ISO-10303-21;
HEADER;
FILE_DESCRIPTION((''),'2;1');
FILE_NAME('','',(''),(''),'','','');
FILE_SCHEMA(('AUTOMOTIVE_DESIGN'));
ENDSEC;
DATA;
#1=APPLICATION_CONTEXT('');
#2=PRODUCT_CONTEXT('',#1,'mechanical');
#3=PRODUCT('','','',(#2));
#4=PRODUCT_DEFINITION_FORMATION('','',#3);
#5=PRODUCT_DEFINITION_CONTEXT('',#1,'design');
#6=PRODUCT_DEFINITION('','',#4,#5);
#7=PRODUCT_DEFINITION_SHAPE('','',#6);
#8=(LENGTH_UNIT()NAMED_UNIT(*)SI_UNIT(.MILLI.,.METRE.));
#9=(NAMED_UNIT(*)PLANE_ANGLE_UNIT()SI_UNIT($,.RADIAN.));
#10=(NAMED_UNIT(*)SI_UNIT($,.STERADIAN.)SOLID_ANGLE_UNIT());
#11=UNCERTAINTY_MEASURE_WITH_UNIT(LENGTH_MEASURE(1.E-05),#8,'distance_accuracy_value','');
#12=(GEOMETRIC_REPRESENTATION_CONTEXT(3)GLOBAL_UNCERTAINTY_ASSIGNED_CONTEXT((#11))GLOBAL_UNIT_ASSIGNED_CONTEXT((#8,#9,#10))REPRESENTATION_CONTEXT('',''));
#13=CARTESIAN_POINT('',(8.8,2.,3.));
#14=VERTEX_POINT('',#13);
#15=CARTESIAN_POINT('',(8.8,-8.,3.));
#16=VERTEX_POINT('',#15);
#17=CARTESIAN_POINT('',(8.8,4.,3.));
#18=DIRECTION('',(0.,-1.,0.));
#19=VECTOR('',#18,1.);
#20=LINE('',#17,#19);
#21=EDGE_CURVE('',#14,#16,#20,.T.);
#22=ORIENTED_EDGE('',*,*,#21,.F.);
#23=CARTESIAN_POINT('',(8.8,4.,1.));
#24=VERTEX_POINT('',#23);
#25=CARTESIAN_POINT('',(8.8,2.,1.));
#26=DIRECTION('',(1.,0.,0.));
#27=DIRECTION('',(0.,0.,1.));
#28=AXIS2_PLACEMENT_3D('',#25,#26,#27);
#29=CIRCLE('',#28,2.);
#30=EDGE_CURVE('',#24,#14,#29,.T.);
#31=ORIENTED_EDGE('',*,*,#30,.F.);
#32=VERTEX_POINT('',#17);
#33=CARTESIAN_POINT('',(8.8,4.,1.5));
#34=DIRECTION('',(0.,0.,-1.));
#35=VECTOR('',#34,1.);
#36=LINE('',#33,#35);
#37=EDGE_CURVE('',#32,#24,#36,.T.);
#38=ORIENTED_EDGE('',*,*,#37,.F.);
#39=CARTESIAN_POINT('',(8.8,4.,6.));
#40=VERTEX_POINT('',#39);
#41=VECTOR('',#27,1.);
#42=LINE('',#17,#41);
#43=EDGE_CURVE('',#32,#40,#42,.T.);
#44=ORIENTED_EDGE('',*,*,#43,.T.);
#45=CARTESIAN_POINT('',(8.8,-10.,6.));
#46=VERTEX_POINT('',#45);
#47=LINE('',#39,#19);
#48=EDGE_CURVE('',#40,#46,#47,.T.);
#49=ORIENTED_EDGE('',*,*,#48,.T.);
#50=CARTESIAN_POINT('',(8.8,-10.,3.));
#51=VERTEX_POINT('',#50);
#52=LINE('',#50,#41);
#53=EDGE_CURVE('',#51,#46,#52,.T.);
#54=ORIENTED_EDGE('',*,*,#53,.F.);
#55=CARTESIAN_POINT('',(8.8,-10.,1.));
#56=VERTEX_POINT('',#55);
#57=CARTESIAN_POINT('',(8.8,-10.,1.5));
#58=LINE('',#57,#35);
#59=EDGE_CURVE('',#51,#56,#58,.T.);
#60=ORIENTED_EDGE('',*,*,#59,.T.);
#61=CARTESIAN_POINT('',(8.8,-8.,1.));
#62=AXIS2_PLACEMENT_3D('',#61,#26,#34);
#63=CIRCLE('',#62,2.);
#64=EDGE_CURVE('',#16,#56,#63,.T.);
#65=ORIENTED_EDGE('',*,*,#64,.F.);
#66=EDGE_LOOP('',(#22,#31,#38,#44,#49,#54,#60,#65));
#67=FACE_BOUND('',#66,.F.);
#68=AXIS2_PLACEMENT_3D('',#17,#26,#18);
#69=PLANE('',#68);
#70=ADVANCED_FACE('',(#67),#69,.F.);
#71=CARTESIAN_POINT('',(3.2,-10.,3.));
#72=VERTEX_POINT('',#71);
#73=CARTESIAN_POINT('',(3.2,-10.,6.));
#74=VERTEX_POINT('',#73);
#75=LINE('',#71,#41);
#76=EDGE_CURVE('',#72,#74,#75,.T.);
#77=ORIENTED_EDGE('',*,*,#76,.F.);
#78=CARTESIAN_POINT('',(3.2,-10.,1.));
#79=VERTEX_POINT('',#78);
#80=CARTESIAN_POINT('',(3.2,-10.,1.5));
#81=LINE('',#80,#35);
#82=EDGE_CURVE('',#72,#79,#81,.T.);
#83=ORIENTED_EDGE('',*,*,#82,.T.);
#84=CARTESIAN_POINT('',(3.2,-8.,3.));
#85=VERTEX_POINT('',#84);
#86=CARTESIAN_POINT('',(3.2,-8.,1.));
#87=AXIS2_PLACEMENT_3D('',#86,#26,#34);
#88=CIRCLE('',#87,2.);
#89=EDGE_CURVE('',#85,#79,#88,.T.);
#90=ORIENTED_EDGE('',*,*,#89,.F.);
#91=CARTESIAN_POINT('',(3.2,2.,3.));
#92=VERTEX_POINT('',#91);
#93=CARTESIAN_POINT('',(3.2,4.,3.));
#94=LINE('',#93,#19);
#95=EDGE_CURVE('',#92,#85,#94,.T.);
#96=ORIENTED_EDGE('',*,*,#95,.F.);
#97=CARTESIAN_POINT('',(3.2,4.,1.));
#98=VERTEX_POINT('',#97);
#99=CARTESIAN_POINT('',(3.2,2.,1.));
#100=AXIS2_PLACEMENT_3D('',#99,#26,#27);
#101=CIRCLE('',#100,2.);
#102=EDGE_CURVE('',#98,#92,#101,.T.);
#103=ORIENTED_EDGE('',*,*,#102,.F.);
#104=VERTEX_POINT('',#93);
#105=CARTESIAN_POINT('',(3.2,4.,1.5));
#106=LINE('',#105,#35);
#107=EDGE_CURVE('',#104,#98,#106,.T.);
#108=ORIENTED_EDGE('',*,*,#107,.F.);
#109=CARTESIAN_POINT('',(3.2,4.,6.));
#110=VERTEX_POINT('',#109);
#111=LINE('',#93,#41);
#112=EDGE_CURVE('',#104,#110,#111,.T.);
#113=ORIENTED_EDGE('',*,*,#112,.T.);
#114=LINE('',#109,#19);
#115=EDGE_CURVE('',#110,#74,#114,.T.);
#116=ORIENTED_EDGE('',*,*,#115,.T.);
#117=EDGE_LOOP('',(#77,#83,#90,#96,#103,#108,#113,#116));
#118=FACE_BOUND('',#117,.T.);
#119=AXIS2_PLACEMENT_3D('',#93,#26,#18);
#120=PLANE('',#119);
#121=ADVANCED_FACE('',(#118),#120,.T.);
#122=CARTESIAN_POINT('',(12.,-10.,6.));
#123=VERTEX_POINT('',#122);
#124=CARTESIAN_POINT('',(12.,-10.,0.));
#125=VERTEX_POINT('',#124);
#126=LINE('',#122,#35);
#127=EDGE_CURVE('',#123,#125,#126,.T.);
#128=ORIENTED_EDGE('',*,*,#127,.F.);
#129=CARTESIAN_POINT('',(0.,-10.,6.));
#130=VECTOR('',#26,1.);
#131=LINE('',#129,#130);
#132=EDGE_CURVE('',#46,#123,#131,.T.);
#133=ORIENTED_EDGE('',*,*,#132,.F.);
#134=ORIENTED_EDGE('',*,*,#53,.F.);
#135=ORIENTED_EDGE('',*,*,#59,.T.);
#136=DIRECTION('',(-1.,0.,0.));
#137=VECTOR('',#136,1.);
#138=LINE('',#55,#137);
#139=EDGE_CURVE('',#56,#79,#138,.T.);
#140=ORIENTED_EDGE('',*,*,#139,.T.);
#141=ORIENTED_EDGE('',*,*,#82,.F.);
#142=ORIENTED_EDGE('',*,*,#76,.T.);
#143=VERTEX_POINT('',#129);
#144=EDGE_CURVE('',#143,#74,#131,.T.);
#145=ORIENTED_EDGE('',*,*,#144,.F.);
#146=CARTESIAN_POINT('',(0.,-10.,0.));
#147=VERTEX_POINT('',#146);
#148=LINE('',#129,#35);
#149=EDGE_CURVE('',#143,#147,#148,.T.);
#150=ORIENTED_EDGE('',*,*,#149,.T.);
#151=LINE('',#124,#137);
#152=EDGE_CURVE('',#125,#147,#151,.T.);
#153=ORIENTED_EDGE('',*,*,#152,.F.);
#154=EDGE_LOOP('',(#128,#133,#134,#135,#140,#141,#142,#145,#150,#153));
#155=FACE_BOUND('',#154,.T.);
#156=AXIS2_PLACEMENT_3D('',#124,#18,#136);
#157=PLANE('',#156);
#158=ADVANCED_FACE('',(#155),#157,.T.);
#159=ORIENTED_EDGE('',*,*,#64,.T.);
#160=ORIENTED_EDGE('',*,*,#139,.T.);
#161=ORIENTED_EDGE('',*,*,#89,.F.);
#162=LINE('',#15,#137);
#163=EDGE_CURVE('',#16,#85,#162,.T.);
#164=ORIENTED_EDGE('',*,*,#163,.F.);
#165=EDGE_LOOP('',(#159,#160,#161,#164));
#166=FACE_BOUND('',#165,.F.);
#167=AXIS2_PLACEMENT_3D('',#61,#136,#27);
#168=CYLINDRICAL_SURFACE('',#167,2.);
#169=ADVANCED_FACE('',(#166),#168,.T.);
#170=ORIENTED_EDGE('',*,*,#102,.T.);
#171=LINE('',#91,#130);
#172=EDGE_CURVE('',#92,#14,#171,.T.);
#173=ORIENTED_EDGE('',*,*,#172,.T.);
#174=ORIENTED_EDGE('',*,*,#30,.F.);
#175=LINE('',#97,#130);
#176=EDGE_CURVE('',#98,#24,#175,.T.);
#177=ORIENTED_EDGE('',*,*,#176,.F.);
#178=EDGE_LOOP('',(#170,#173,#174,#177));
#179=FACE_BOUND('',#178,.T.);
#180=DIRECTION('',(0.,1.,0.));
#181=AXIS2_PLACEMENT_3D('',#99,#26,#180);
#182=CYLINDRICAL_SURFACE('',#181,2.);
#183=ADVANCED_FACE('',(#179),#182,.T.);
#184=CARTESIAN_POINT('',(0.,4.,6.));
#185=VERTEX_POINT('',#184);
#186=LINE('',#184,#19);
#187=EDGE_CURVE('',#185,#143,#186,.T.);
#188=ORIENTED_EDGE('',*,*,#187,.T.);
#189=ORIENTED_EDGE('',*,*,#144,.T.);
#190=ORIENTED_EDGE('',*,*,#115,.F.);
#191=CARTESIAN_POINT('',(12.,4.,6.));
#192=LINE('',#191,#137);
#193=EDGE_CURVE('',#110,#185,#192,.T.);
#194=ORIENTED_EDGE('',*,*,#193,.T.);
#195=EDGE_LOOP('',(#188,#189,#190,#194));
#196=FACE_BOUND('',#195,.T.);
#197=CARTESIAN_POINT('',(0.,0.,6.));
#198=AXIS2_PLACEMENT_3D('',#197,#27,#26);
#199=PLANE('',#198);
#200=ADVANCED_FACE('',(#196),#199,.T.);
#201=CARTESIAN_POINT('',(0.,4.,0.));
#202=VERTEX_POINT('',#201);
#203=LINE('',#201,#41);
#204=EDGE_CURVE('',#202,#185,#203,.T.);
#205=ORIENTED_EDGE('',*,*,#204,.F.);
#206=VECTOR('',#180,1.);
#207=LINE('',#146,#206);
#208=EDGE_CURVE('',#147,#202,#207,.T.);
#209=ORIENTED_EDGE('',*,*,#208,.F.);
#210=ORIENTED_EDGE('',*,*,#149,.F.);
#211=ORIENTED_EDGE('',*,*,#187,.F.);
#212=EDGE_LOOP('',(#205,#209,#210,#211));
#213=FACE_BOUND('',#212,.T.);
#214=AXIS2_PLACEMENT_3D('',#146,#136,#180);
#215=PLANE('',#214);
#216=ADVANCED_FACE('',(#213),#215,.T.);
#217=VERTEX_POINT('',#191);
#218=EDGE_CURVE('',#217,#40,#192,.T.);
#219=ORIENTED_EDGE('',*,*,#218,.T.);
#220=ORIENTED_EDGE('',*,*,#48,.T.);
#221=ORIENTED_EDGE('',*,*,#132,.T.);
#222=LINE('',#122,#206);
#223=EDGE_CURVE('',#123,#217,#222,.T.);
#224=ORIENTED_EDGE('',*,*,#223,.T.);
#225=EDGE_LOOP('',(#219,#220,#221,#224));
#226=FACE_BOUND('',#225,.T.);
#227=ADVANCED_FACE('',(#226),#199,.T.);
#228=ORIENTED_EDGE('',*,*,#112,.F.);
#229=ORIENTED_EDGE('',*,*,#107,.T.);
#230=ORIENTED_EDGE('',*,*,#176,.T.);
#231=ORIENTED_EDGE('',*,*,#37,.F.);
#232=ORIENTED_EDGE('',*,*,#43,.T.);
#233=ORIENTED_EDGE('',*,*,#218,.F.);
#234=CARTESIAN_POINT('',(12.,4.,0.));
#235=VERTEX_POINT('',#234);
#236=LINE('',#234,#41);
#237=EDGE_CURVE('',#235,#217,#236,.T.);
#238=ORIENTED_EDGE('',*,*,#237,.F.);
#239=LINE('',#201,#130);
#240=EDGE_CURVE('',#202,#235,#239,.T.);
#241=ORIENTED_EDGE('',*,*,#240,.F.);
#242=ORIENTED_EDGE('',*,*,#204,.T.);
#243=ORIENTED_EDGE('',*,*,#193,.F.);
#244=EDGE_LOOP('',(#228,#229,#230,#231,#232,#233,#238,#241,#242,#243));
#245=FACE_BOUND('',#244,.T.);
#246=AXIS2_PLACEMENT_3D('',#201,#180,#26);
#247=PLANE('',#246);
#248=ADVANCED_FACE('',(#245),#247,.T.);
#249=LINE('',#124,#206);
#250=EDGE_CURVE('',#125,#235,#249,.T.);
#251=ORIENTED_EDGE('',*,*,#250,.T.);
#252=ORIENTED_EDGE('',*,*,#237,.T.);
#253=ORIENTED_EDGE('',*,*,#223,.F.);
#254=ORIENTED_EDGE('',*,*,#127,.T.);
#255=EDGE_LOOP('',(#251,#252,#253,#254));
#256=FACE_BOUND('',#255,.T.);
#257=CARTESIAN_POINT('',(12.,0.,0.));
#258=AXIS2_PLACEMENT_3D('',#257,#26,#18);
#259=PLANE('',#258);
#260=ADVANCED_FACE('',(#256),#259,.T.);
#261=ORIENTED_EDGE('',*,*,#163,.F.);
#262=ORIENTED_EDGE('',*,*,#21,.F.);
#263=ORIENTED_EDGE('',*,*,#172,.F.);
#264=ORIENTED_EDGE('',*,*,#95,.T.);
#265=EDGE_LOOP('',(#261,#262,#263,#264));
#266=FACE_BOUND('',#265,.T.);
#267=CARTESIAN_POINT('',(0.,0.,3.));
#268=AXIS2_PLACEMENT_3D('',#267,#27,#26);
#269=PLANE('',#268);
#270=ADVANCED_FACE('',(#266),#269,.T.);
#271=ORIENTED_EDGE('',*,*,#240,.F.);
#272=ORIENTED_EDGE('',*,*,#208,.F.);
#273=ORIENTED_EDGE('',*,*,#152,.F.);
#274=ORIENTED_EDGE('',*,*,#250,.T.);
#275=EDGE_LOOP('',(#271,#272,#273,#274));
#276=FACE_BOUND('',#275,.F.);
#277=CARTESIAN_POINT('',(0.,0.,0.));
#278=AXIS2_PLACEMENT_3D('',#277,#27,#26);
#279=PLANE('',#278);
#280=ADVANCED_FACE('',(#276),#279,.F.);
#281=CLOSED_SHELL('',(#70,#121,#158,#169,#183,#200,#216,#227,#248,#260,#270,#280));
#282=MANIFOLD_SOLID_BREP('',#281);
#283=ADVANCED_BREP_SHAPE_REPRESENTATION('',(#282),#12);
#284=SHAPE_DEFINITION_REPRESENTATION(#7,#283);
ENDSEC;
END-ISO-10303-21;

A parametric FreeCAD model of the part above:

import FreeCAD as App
import Part
import Sketcher

V = App.Vector
Q = App.Units.Quantity


def edges_at(feature, points):
    """Names of the edges that pass closest to the given points."""
    edges = feature.Shape.Edges
    near = lambda p: min(range(len(edges)), key=lambda i: edges[i].distToShape(Part.Vertex(*p))[0])
    return sorted({f"Edge{near(p) + 1}" for p in points})


def add_polygon(sketch, points):
    """Adds a closed chain of lines whose ends are joined by coincident constraints."""
    first, n = sketch.GeometryCount, len(points)
    for a, b in zip(points, points[1:] + points[:1]):
        sketch.addGeometry(Part.LineSegment(App.Vector(*a, 0), App.Vector(*b, 0)), False)
    for i in range(n):
        sketch.addConstraint(Sketcher.Constraint("Coincident", first + i, 2, first + (i + 1) % n, 1))

doc = App.newDocument("Part")
body = doc.addObject("PartDesign::Body", "Body")

sketch1 = body.newObject("Sketcher::SketchObject", "Sketch")
sketch1.AttachmentSupport = (doc.getObject("XY_Plane"), [""])
sketch1.MapMode = "FlatFace"
add_polygon(sketch1, [(12, -10), (12, 4), (0, 4), (0, -10)])
sketch1.addConstraint([
    Sketcher.Constraint("Vertical", 0),
    Sketcher.Constraint("Horizontal", 1),
    Sketcher.Constraint("Vertical", 2),
    Sketcher.Constraint("Horizontal", 3),
    Sketcher.Constraint("PointOnObject", 1, 2, -2),
    Sketcher.Constraint("DistanceY", 2, 2, -1, 1, Q("10 mm")),
    Sketcher.Constraint("DistanceX", 1, 2, 1, 1, Q("12 mm")),
    Sketcher.Constraint("DistanceY", 0, 1, 0, 2, Q("14 mm")),
])
pad1 = body.newObject("PartDesign::Pad", "Pad")
pad1.Profile = sketch1
pad1.Length = 3

sketch2 = body.newObject("Sketcher::SketchObject", "Sketch001")
sketch2.AttachmentSupport = (doc.getObject("XY_Plane"), [""])
sketch2.MapMode = "FlatFace"
sketch2.AttachmentOffset = App.Placement(V(0, 0, 3), App.Rotation())
add_polygon(sketch2, [(8.8, -10), (12, -10), (12, 4), (8.8, 4)])
add_polygon(sketch2, [(0, -10), (3.2, -10), (3.2, 4), (0, 4)])
sketch2.addConstraint([
    Sketcher.Constraint("Horizontal", 0),
    Sketcher.Constraint("Vertical", 1),
    Sketcher.Constraint("Horizontal", 2),
    Sketcher.Constraint("Vertical", 3),
    Sketcher.Constraint("Horizontal", 4),
    Sketcher.Constraint("Vertical", 5),
    Sketcher.Constraint("Horizontal", 6),
    Sketcher.Constraint("Vertical", 7),
    Sketcher.Constraint("PointOnObject", 6, 2, -2),
    Sketcher.Constraint("Horizontal", 3, 2, 4, 2),
    Sketcher.Constraint("Horizontal", 2, 2, 5, 2),
    Sketcher.Constraint("Equal", 2, 4),
    Sketcher.Constraint("DistanceY", 1, 1, 1, 2, Q("14 mm")),
    Sketcher.Constraint("DistanceX", 0, 1, 0, 2, Q("3.2 mm")),
    Sketcher.Constraint("DistanceX", -1, 1, 0, 2, Q("12 mm")),
    Sketcher.Constraint("DistanceY", 0, 2, -1, 1, Q("10 mm")),
])
pad2 = body.newObject("PartDesign::Pad", "Pad001")
pad2.Profile = sketch2
pad2.Length = 3
doc.recompute()

fillet = body.newObject("PartDesign::Fillet", "Fillet")
fillet.Base = (pad2, edges_at(pad2, [(6, 4, 3)]))
fillet.Radius = 2
doc.recompute()

fillet2 = body.newObject("PartDesign::Fillet", "Fillet001")
fillet2.Base = (fillet, edges_at(fillet, [(6, -10, 3)]))
fillet2.Radius = 2

doc.recompute()
